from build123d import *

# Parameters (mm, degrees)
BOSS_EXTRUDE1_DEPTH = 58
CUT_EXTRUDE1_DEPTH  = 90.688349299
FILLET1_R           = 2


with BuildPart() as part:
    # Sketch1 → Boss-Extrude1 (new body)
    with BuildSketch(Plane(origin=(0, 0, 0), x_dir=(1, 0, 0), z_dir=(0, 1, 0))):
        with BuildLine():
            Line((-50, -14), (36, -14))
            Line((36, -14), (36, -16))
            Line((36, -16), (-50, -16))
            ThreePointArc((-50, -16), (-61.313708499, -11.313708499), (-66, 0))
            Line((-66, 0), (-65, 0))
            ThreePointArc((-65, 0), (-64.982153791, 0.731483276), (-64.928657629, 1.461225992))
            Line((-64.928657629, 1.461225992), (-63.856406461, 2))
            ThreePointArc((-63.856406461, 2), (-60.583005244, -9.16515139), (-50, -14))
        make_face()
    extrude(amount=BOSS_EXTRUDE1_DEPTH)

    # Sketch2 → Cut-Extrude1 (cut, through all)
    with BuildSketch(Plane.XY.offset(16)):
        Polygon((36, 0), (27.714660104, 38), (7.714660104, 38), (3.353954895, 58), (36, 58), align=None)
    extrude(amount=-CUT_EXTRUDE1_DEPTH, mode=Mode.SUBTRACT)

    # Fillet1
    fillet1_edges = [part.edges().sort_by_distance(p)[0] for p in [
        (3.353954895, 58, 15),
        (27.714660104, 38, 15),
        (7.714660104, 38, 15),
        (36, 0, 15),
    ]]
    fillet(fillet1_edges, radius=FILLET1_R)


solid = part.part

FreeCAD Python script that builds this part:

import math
import FreeCAD as App
import Part
import Sketcher

V = App.Vector
Q = App.Units.Quantity


def edges_at(feature, points):
    """Names of the edges that pass closest to the given points."""
    edges = feature.Shape.Edges
    near = lambda p: min(range(len(edges)), key=lambda i: edges[i].distToShape(Part.Vertex(*p))[0])
    return sorted({f"Edge{near(p) + 1}" for p in points})

doc = App.newDocument("Part")
body = doc.addObject("PartDesign::Body", "Body")

sketch1 = body.newObject("Sketcher::SketchObject", "Sketch")
sketch1.AttachmentSupport = (doc.getObject("XZ_Plane"), [""])
sketch1.MapMode = "FlatFace"
sketch1.addGeometry([
    Part.LineSegment(V(36, 14, 0), V(-50, 14, 0)),
    Part.ArcOfCircle(Part.Circle(V(-50, 0, 0), V(0, 0, 1), 14), math.radians(90), math.radians(188)),
    Part.LineSegment(V(-63.9, -2, 0), V(-64.9, -1.5, 0)),
    Part.ArcOfCircle(Part.Circle(V(-50, 0, 0), V(0, 0, 1), 15), math.radians(-180), math.radians(-174.41)),
    Part.LineSegment(V(-65, 0, 0), V(-66, 0, 0)),
    Part.ArcOfCircle(Part.Circle(V(-50, 0, 0), V(0, 0, 1), 16), math.radians(90), math.radians(180)),
    Part.LineSegment(V(-50, 16, 0), V(36, 16, 0)),
    Part.LineSegment(V(36, 16, 0), V(36, 14, 0)),
], False)
sketch1.addConstraint([
    Sketcher.Constraint("Tangent", 0, 2, 1, 1),
    Sketcher.Constraint("Coincident", 1, 2, 2, 1),
    Sketcher.Constraint("Coincident", 2, 2, 3, 2),
    Sketcher.Constraint("Coincident", 3, 1, 4, 1),
    Sketcher.Constraint("Coincident", 4, 2, 5, 2),
    Sketcher.Constraint("Tangent", 5, 1, 6, 1),
    Sketcher.Constraint("Coincident", 6, 2, 7, 1),
    Sketcher.Constraint("Coincident", 7, 2, 0, 1),
    Sketcher.Constraint("Horizontal", 0),
    Sketcher.Constraint("Horizontal", 4),
    Sketcher.Constraint("Horizontal", 6),
    Sketcher.Constraint("Vertical", 7),
    Sketcher.Constraint("Coincident", 3, 3, 1, 3),
    Sketcher.Constraint("Coincident", 5, 3, 1, 3),
    Sketcher.Constraint("PointOnObject", 1, 3, -1),
    Sketcher.Constraint("PointOnObject", 3, 1, -1),
    Sketcher.Constraint("Radius", 1, 14.0),
    Sketcher.Constraint("Radius", 3, 15.0),
    Sketcher.Constraint("Radius", 5, 16.0),
    Sketcher.Constraint("DistanceX", 0, 2, 0, 1, 86.0),
    Sketcher.Constraint("DistanceX", 1, 3, -1, 1, 50.0),
    Sketcher.Constraint("DistanceY", 1, 2, -1, 1, 2.0),
    Sketcher.Constraint("Distance", 2, 1.2),
])
pad1 = body.newObject("PartDesign::Pad", "Pad")
pad1.Profile = sketch1
pad1.Length = 58
pad1.Reversed = True

sketch2 = body.newObject("Sketcher::SketchObject", "Sketch001")
sketch2.AttachmentSupport = (doc.getObject("XY_Plane"), [""])
sketch2.MapMode = "FlatFace"
sketch2.AttachmentOffset = App.Placement(V(0, 0, 16), App.Rotation())
sketch2.addGeometry([
    Part.LineSegment(V(28, 38, 0), V(36, 0, 0)),
    Part.LineSegment(V(36, 0, 0), V(36, 58, 0)),
    Part.LineSegment(V(36, 58, 0), V(3, 58, 0)),
    Part.LineSegment(V(3, 58, 0), V(8, 38, 0)),
    Part.LineSegment(V(8, 38, 0), V(28, 38, 0)),
], False)
sketch2.addConstraint([
    Sketcher.Constraint("Coincident", 0, 2, 1, 1),
    Sketcher.Constraint("Coincident", 1, 2, 2, 1),
    Sketcher.Constraint("Coincident", 2, 2, 3, 1),
    Sketcher.Constraint("Coincident", 3, 2, 4, 1),
    Sketcher.Constraint("Coincident", 4, 2, 0, 1),
    Sketcher.Constraint("Vertical", 1),
    Sketcher.Constraint("Horizontal", 2),
    Sketcher.Constraint("Horizontal", 4),
    Sketcher.Constraint("PointOnObject", 0, 2, -1),
    Sketcher.Constraint("Parallel", 0, 3),
    Sketcher.Constraint("DistanceX", 4, 1, 4, 2, 20.0),
    Sketcher.Constraint("DistanceY", 1, 1, 1, 2, 58.0),
    Sketcher.Constraint("DistanceX", -1, 1, 0, 2, 36.0),
    Sketcher.Constraint("DistanceY", -1, 1, 3, 2, 38.0),
    Sketcher.Constraint("Angle", 0, Q("-77.7 deg")),
])
pocket1 = body.newObject("PartDesign::Pocket", "Pocket")
pocket1.Profile = sketch2
pocket1.Type = "ThroughAll"
doc.recompute()

fillet = body.newObject("PartDesign::Fillet", "Fillet")
fillet.Base = (pocket1, edges_at(pocket1, [
    (3.354, 58, 15),
    (27.715, 38, 15),
    (7.715, 38, 15),
    (36, 0, 15),
]))
fillet.Radius = 2

doc.recompute()
